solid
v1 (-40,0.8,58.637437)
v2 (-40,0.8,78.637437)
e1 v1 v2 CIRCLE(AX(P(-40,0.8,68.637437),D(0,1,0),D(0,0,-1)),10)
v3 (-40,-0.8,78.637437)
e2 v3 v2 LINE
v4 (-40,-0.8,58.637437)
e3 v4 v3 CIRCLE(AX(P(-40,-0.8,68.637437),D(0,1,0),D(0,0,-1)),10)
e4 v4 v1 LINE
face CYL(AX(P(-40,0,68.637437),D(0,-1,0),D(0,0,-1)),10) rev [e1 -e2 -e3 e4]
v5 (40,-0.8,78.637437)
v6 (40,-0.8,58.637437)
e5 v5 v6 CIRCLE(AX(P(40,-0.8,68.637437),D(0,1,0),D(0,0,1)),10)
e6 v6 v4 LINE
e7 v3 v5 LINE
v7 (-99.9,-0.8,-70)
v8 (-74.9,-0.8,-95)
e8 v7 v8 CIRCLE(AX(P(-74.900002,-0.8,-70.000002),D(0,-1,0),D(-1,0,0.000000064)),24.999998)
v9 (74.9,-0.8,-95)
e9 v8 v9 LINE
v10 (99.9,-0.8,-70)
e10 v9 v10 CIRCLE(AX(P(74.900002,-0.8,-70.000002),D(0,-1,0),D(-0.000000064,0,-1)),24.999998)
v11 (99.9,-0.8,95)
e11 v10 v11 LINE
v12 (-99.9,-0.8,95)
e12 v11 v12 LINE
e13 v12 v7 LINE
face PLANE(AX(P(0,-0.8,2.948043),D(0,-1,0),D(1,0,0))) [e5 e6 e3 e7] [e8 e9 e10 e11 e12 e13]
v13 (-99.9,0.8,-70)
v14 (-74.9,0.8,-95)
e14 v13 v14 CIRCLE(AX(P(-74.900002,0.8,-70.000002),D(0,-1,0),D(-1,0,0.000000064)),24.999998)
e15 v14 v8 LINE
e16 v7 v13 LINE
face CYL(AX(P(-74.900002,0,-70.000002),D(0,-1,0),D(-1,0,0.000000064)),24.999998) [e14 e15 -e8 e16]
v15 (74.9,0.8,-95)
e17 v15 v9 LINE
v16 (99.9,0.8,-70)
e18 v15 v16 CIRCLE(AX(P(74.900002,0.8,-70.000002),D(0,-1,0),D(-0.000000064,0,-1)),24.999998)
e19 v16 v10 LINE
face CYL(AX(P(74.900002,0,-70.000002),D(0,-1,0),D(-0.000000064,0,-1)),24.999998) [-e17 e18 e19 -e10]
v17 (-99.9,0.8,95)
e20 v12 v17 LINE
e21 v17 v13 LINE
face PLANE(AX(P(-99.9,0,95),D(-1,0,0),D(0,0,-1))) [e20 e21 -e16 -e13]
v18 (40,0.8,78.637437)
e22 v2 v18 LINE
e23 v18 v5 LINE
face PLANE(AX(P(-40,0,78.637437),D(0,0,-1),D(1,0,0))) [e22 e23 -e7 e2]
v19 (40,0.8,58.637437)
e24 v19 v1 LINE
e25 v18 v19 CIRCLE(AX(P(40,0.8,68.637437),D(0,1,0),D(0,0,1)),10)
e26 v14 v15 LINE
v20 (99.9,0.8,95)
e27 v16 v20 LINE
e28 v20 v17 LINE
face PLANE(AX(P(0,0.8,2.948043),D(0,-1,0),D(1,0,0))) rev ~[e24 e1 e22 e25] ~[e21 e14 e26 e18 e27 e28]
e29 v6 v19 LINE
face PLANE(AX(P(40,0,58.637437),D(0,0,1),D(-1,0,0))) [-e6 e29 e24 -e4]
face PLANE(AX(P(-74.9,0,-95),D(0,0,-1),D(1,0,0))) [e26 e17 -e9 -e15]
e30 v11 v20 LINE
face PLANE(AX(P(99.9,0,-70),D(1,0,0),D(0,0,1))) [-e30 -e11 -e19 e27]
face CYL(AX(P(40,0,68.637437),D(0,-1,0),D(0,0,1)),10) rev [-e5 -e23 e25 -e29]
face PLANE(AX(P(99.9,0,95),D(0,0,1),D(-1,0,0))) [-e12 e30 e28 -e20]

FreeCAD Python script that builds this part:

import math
import FreeCAD as App
import Part
import Sketcher
Q = App.Units.Quantity

doc = App.newDocument("Part")
body = doc.addObject("PartDesign::Body", "Body")

sketch1 = body.newObject("Sketcher::SketchObject", "Sketch")
sketch1.AttachmentSupport = (doc.getObject("XZ_Plane"), [""])
sketch1.MapMode = "FlatFace"
sketch1.addGeometry([
    Part.ArcOfCircle(Part.Circle(App.Vector(-74.900002, -70.000002, 0), App.Vector(0, 0, 1), 24.999998), math.radians(179.999996), math.radians(270.000004)),
    Part.LineSegment(App.Vector(-74.9, -95, 0), App.Vector(74.9, -95, 0)),
    Part.ArcOfCircle(Part.Circle(App.Vector(74.900002, -70.000002, 0), App.Vector(0, 0, 1), 24.999998), math.radians(-90.000004), math.radians(0.000004)),
    Part.LineSegment(App.Vector(99.9, -70, 0), App.Vector(99.9, 95, 0)),
    Part.LineSegment(App.Vector(99.9, 95, 0), App.Vector(-99.9, 95, 0)),
    Part.LineSegment(App.Vector(-99.9, 95, 0), App.Vector(-99.9, -70, 0)),
    Part.LineSegment(App.Vector(-40, 78.637437, 0), App.Vector(40, 78.637437, 0)),
    Part.ArcOfCircle(Part.Circle(App.Vector(40, 68.637437, 0), App.Vector(0, 0, 1), 10), math.radians(-90), math.radians(90)),
    Part.LineSegment(App.Vector(40, 58.637437, 0), App.Vector(-40, 58.637437, 0)),
    Part.ArcOfCircle(Part.Circle(App.Vector(-40, 68.637437, 0), App.Vector(0, 0, 1), 10), math.radians(90), math.radians(270)),
], False)
sketch1.addConstraint([
    Sketcher.Constraint("Tangent", 0, 2, 1, 1),
    Sketcher.Constraint("Tangent", 1, 2, 2, 1),
    Sketcher.Constraint("Tangent", 2, 2, 3, 1),
    Sketcher.Constraint("Coincident", 3, 2, 4, 1),
    Sketcher.Constraint("Coincident", 4, 2, 5, 1),
    Sketcher.Constraint("Tangent", 5, 2, 0, 1),
    Sketcher.Constraint("Tangent", 6, 2, 7, 2),
    Sketcher.Constraint("Tangent", 7, 1, 8, 1),
    Sketcher.Constraint("Tangent", 8, 2, 9, 2),
    Sketcher.Constraint("Tangent", 9, 1, 6, 1),
    Sketcher.Constraint("Horizontal", 1),
    Sketcher.Constraint("Vertical", 3),
    Sketcher.Constraint("Horizontal", 4),
    Sketcher.Constraint("Vertical", 5),
    Sketcher.Constraint("Horizontal", 6),
    Sketcher.Constraint("Horizontal", 8),
    Sketcher.Constraint("Equal", 0, 2),
    Sketcher.Constraint("Radius", 0, Q("24.999998 mm")),
    Sketcher.Constraint("Radius", 7, Q("10 mm")),
    Sketcher.Constraint("DistanceX", 6, 1, 6, 2, Q("80 mm")),
    Sketcher.Constraint("DistanceY", 3, 1, 3, 2, Q("165 mm")),
    Sketcher.Constraint("DistanceX", 1, 1, 1, 2, Q("149.8 mm")),
    Sketcher.Constraint("DistanceY", 0, 3, -1, 1, Q("70.000002 mm")),
    Sketcher.Constraint("DistanceX", -1, 1, 7, 3, Q("40 mm")),
    Sketcher.Constraint("DistanceX", 0, 3, -1, 1, Q("74.900002 mm")),
    Sketcher.Constraint("DistanceY", 2, 3, 7, 3, Q("138.637439 mm")),
])
pad1 = body.newObject("PartDesign::Pad", "Pad")
pad1.Profile = sketch1
pad1.Length = 1.6
pad1.Midplane = True

doc.recompute()
